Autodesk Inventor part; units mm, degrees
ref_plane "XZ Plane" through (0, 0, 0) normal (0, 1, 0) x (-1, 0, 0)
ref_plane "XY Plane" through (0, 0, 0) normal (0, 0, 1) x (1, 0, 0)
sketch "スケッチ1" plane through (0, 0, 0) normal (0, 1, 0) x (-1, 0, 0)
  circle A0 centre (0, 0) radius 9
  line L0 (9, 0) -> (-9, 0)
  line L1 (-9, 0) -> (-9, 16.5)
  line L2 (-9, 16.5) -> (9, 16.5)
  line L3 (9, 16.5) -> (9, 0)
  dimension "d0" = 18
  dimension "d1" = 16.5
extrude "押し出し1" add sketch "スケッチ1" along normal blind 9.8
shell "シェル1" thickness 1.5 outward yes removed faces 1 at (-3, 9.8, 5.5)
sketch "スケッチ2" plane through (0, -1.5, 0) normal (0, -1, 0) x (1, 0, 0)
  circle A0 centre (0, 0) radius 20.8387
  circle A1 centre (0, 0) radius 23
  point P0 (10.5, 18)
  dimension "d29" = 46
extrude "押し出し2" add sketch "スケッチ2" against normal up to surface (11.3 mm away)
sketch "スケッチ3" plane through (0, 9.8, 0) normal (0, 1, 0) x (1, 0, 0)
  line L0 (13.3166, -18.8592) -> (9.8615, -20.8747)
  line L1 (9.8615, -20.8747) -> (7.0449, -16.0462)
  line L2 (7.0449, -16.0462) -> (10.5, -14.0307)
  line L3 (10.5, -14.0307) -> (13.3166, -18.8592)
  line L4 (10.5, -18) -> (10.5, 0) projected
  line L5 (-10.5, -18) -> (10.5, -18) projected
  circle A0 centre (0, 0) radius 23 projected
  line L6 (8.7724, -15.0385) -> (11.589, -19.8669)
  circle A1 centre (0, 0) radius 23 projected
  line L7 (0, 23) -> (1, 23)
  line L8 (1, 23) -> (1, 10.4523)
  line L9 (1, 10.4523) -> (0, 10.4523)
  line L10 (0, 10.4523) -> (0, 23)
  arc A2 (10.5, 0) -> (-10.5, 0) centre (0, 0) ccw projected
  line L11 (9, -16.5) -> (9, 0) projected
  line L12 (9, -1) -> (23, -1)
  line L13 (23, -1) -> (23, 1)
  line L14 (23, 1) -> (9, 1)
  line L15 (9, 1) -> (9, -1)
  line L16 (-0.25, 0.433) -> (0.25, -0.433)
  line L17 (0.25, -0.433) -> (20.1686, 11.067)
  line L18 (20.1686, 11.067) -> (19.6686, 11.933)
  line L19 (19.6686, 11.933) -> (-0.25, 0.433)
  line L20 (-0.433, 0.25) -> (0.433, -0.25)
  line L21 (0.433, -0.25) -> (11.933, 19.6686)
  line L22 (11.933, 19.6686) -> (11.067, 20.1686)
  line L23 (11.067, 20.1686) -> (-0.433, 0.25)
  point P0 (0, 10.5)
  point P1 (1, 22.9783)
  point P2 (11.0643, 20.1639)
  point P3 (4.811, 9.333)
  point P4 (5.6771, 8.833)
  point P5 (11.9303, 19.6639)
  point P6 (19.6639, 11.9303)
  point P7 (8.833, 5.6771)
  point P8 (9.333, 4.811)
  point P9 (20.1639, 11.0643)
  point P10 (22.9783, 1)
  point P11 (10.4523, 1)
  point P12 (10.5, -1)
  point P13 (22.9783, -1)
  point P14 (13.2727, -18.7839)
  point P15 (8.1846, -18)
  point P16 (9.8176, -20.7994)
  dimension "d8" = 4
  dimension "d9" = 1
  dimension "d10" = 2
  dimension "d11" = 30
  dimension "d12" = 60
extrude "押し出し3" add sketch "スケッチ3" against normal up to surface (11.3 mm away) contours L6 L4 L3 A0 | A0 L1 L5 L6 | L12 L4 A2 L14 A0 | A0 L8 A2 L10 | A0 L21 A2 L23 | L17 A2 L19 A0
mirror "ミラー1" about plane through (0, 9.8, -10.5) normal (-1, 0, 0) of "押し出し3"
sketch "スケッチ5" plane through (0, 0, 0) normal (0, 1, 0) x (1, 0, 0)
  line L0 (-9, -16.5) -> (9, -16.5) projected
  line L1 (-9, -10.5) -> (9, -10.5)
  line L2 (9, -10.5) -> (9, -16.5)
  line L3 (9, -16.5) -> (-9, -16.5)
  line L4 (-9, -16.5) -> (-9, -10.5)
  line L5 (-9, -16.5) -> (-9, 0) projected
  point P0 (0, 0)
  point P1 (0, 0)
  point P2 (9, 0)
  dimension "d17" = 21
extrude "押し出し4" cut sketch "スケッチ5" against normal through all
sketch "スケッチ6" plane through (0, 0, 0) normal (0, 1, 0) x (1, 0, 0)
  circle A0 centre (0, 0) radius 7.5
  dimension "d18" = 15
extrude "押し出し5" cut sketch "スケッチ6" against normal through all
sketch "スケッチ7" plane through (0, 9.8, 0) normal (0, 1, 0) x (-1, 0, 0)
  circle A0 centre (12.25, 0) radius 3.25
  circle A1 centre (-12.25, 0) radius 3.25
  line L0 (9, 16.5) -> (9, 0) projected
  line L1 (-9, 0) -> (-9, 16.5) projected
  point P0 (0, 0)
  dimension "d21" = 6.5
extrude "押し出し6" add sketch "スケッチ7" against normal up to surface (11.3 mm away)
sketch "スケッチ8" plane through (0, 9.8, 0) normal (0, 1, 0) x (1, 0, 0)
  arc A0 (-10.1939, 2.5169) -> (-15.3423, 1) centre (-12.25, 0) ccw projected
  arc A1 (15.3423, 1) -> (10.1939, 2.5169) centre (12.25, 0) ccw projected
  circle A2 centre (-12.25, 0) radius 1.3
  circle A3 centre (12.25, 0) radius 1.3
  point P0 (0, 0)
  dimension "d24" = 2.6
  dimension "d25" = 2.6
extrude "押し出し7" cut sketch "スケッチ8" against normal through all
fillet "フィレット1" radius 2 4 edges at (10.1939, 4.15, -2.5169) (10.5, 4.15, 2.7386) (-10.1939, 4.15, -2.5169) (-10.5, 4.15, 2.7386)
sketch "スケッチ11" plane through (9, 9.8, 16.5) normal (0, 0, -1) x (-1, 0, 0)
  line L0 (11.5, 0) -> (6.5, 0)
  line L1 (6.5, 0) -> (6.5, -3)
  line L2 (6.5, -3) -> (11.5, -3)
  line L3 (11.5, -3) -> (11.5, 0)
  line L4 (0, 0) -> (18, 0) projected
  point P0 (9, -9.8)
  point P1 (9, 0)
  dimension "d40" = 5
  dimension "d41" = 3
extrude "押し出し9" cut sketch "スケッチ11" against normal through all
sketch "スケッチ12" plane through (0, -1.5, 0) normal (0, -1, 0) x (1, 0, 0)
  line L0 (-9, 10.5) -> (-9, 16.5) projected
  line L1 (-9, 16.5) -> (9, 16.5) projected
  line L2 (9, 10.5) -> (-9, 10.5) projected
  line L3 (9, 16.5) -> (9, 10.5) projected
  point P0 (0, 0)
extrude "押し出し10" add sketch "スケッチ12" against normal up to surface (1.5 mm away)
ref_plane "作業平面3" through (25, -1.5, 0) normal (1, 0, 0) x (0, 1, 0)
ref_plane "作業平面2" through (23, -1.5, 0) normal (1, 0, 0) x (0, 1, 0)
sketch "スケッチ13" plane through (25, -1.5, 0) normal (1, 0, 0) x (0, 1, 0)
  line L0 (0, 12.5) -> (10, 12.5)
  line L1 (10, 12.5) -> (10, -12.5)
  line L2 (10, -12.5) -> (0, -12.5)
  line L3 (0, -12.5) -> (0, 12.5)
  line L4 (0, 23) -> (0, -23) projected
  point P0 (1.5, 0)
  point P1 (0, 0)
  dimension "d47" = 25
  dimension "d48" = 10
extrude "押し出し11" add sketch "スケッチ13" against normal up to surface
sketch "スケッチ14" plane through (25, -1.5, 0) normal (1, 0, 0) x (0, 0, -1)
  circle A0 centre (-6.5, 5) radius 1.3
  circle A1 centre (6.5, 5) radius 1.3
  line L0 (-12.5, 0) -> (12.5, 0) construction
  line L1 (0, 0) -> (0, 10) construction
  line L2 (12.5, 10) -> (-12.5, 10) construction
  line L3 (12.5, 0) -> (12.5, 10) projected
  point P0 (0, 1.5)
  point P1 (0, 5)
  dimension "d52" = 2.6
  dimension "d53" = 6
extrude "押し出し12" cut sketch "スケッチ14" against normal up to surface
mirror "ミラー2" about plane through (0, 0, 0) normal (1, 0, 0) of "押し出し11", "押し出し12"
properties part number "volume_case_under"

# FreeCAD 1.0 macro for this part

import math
import FreeCAD as App
import Part
import Sketcher
from FreeCAD import Vector
Q = App.Units.Quantity


def edges_at(feature, points):
    """Names of the edges that pass closest to the given points."""
    edges = feature.Shape.Edges
    near = lambda p: min(range(len(edges)), key=lambda i: edges[i].distToShape(Part.Vertex(*p))[0])
    return sorted({f"Edge{near(p) + 1}" for p in points})


def faces_at(feature, points):
    """Names of the faces that lie closest to the given points."""
    faces = feature.Shape.Faces
    near = lambda p: min(range(len(faces)), key=lambda i: faces[i].distToShape(Part.Vertex(*p))[0])
    return sorted({f"Face{near(p) + 1}" for p in points})

doc = App.newDocument("Part")
body = doc.addObject("PartDesign::Body", "Body")
body.AllowCompound = True

sketch1 = doc.addObject("Sketcher::SketchObject", "Sketch")
body.addObject(sketch1)
sketch1.AttachmentSupport = (doc.XZ_Plane, [""])
sketch1.MapMode = "FlatFace"
sketch1.addGeometry([
    Part.ArcOfCircle(Part.Circle(Vector(0, 0, 0), Vector(0, 0, 1), 9), math.radians(180), math.radians(360)),
    Part.LineSegment(Vector(-9, 0, 0), Vector(-9, 16, 0)),
    Part.LineSegment(Vector(-9, 16, 0), Vector(9, 16, 0)),
    Part.LineSegment(Vector(9, 16, 0), Vector(9, 0, 0)),
], False)
sketch1.addConstraint([
    Sketcher.Constraint("Tangent", 0, 1, 1, 1),
    Sketcher.Constraint("Coincident", 1, 2, 2, 1),
    Sketcher.Constraint("Coincident", 2, 2, 3, 1),
    Sketcher.Constraint("Tangent", 3, 2, 0, 2),
    Sketcher.Constraint("Vertical", 1),
    Sketcher.Constraint("Horizontal", 2),
    Sketcher.Constraint("Vertical", 3),
    Sketcher.Constraint("Coincident", 0, 3, -1, 1),
    Sketcher.Constraint("Radius", 0, Q("9 mm")),
    Sketcher.Constraint("DistanceY", 1, 1, 1, 2, Q("16.5 mm")),
])
pad1 = doc.addObject("PartDesign::Pad", "Pad")
body.addObject(pad1)
pad1.Profile = sketch1
pad1.Length = 9.8
pad1.Reversed = True
doc.recompute()

thickness = doc.addObject("PartDesign::Thickness", "Thickness")
body.addObject(thickness)
thickness.Base = (pad1, faces_at(pad1, [(-3, 9.8, 5.5)]))
thickness.Value = 1.5
thickness.Reversed = False
thickness.Join = "Intersection"

sketch2 = doc.addObject("Sketcher::SketchObject", "Sketch001")
body.addObject(sketch2)
sketch2.AttachmentSupport = (doc.XZ_Plane, [""])
sketch2.MapMode = "FlatFace"
sketch2.AttachmentOffset = App.Placement(Vector(0, 0, 1.5), App.Rotation())
sketch2.addGeometry([
    Part.Circle(Vector(0, 0, 0), Vector(0, 0, 1), 23),
    Part.Circle(Vector(0, 0, 0), Vector(0, 0, 1), 21),
], False)
sketch2.addConstraint([
    Sketcher.Constraint("Coincident", 0, 3, -1, 1),
    Sketcher.Constraint("Coincident", 1, 3, -1, 1),
    Sketcher.Constraint("Diameter", 0, Q("46 mm")),
    Sketcher.Constraint("Diameter", 1, Q("41.6774 mm")),
])
pad2 = doc.addObject("PartDesign::Pad", "Pad001")
body.addObject(pad2)
pad2.Profile = sketch2
pad2.Length = 11.3
pad2.Reversed = True

sketch3 = doc.addObject("Sketcher::SketchObject", "Sketch002")
body.addObject(sketch3)
sketch3.AttachmentSupport = (doc.XZ_Plane, [""])
sketch3.MapMode = "FlatFace"
sketch3.AttachmentOffset = App.Placement(Vector(0, 0, -9.8), App.Rotation())
sketch3.addGeometry([
    Part.LineSegment(Vector(10.5, 14, 0), Vector(10.5, 18, 0)),
    Part.LineSegment(Vector(10.5, 18, 0), Vector(8.2, 18, 0)),
    Part.LineSegment(Vector(8.2, 18, 0), Vector(9.8, 20.8, 0)),
    Part.ArcOfCircle(Part.Circle(Vector(0, 0, 0), Vector(0, 0, 1), 23), math.radians(54.76), math.radians(64.73)),
    Part.LineSegment(Vector(13.3, 18.8, 0), Vector(10.5, 14, 0)),
    Part.LineSegment(Vector(10.5, 1, 0), Vector(23, 1, 0)),
    Part.ArcOfCircle(Part.Circle(Vector(0, 0, 0), Vector(0, 0, 1), 23), math.radians(-2.49), math.radians(2.49)),
    Part.LineSegment(Vector(23, -1, 0), Vector(10.5, -1, 0)),
    Part.ArcOfCircle(Part.Circle(Vector(0, 0, 0), Vector(0, 0, 1), 10.5), math.radians(-5.47), math.radians(0)),
    Part.LineSegment(Vector(10.5, 0, 0), Vector(10.5, 1, 0)),
    Part.ArcOfCircle(Part.Circle(Vector(0, 0, 0), Vector(0, 0, 1), 23), math.radians(-90), math.radians(-87.51)),
    Part.LineSegment(Vector(0, -23, 0), Vector(0, -10.5, 0)),
    Part.ArcOfCircle(Part.Circle(Vector(0, 0, 0), Vector(0, 0, 1), 10.5), math.radians(-90), math.radians(-84.53)),
    Part.LineSegment(Vector(1, -10.5, 0), Vector(1, -23, 0)),
    Part.ArcOfCircle(Part.Circle(Vector(0, 0, 0), Vector(0, 0, 1), 23), math.radians(-61.25), math.radians(-58.75)),
    Part.LineSegment(Vector(11.1, -20.2, 0), Vector(4.8, -9.3, 0)),
    Part.ArcOfCircle(Part.Circle(Vector(0, 0, 0), Vector(0, 0, 1), 10.5), math.radians(-62.73), math.radians(-57.27)),
    Part.LineSegment(Vector(5.7, -8.8, 0), Vector(11.9, -19.7, 0)),
    Part.LineSegment(Vector(9.3, -4.8, 0), Vector(20.2, -11.1, 0)),
    Part.ArcOfCircle(Part.Circle(Vector(0, 0, 0), Vector(0, 0, 1), 23), math.radians(-31.25), math.radians(-28.75)),
    Part.LineSegment(Vector(19.7, -11.9, 0), Vector(8.8, -5.7, 0)),
    Part.ArcOfCircle(Part.Circle(Vector(0, 0, 0), Vector(0, 0, 1), 10.5), math.radians(-32.73), math.radians(-27.27)),
], False)
sketch3.addConstraint([
    Sketcher.Constraint("Coincident", 0, 2, 1, 1),
    Sketcher.Constraint("Coincident", 1, 2, 2, 1),
    Sketcher.Constraint("Coincident", 2, 2, 3, 2),
    Sketcher.Constraint("Coincident", 3, 1, 4, 1),
    Sketcher.Constraint("Coincident", 4, 2, 0, 1),
    Sketcher.Constraint("Coincident", 5, 2, 6, 2),
    Sketcher.Constraint("Coincident", 6, 1, 7, 1),
    Sketcher.Constraint("Coincident", 7, 2, 8, 1),
    Sketcher.Constraint("Tangent", 8, 2, 9, 1),
    Sketcher.Constraint("Coincident", 9, 2, 5, 1),
    Sketcher.Constraint("Coincident", 10, 1, 11, 1),
    Sketcher.Constraint("Coincident", 11, 2, 12, 1),
    Sketcher.Constraint("Coincident", 12, 2, 13, 1),
    Sketcher.Constraint("Coincident", 13, 2, 10, 2),
    Sketcher.Constraint("Coincident", 14, 1, 15, 1),
    Sketcher.Constraint("Coincident", 15, 2, 16, 1),
    Sketcher.Constraint("Coincident", 16, 2, 17, 1),
    Sketcher.Constraint("Coincident", 17, 2, 14, 2),
    Sketcher.Constraint("Coincident", 18, 2, 19, 2),
    Sketcher.Constraint("Coincident", 19, 1, 20, 1),
    Sketcher.Constraint("Coincident", 20, 2, 21, 1),
    Sketcher.Constraint("Coincident", 21, 2, 18, 1),
    Sketcher.Constraint("Vertical", 0),
    Sketcher.Constraint("Horizontal", 1),
    Sketcher.Constraint("Horizontal", 5),
    Sketcher.Constraint("Horizontal", 7),
    Sketcher.Constraint("Vertical", 9),
    Sketcher.Constraint("Vertical", 11),
    Sketcher.Constraint("Vertical", 13),
    Sketcher.Constraint("Coincident", 3, 3, -1, 1),
    Sketcher.Constraint("Coincident", 6, 3, -1, 1),
    Sketcher.Constraint("Coincident", 8, 3, -1, 1),
    Sketcher.Constraint("Coincident", 10, 3, -1, 1),
    Sketcher.Constraint("Coincident", 12, 3, -1, 1),
    Sketcher.Constraint("Coincident", 14, 3, -1, 1),
    Sketcher.Constraint("Coincident", 16, 3, -1, 1),
    Sketcher.Constraint("Coincident", 19, 3, -1, 1),
    Sketcher.Constraint("Coincident", 21, 3, -1, 1),
    Sketcher.Constraint("Equal", 3, 6),
    Sketcher.Constraint("Equal", 6, 10),
    Sketcher.Constraint("Equal", 8, 12),
    Sketcher.Constraint("Equal", 10, 14),
    Sketcher.Constraint("Equal", 12, 16),
    Sketcher.Constraint("Equal", 14, 19),
    Sketcher.Constraint("Equal", 16, 21),
    Sketcher.Constraint("PointOnObject", 10, 1, -2),
    Sketcher.Constraint("Parallel", 2, 4),
    Sketcher.Constraint("Parallel", 15, 17),
    Sketcher.Constraint("Parallel", 18, 20),
    Sketcher.Constraint("Vertical", 5, 2, 6, 1),
    Sketcher.Constraint("Vertical", 4, 2, 8, 2),
    Sketcher.Constraint("Equal", 7, 13),
    Sketcher.Constraint("Equal", 15, 17),
    Sketcher.Constraint("Equal", 17, 18),
    Sketcher.Constraint("Equal", 18, 20),
    Sketcher.Constraint("DistanceY", 9, 1, 9, 2, Q("1 mm")),
    Sketcher.Constraint("Angle", 17, Q("-60 deg")),
    Sketcher.Constraint("Angle", 18, Q("-30 deg")),
    Sketcher.Constraint("Radius", 3, Q("23 mm")),
    Sketcher.Constraint("Radius", 8, Q("10.5 mm")),
    Sketcher.Constraint("DistanceY", -1, 1, 0, 2, Q("18 mm")),
    Sketcher.Constraint("DistanceY", 15, 2, 16, 2, Q("0.5 mm")),
    Sketcher.Constraint("DistanceX", 1, 2, 1, 1, Q("2.3154 mm")),
    Sketcher.Constraint("DistanceY", 0, 1, 0, 2, Q("3.9693 mm")),
    Sketcher.Constraint("DistanceY", -1, 1, 3, 1, Q("18.784 mm")),
])
pad3 = doc.addObject("PartDesign::Pad", "Pad002")
body.addObject(pad3)
pad3.Profile = sketch3
pad3.Length = 11.3
doc.recompute()

mirrored = doc.addObject("PartDesign::Mirrored", "Mirrored")
body.addObject(mirrored)
mirrored.Originals = [pad3]
mirrored.MirrorPlane = (doc.YZ_Plane, [""])
body.Tip = mirrored

sketch4 = doc.addObject("Sketcher::SketchObject", "Sketch003")
body.addObject(sketch4)
sketch4.AttachmentSupport = (doc.XZ_Plane, [""])
sketch4.MapMode = "FlatFace"
sketch4.addGeometry([
    Part.LineSegment(Vector(-9, 10, 0), Vector(-9, 16, 0)),
    Part.LineSegment(Vector(-9, 16, 0), Vector(9, 16, 0)),
    Part.LineSegment(Vector(9, 16, 0), Vector(9, 10, 0)),
    Part.LineSegment(Vector(9, 10, 0), Vector(-9, 10, 0)),
], False)
sketch4.addConstraint([
    Sketcher.Constraint("Coincident", 0, 2, 1, 1),
    Sketcher.Constraint("Coincident", 1, 2, 2, 1),
    Sketcher.Constraint("Coincident", 2, 2, 3, 1),
    Sketcher.Constraint("Coincident", 3, 2, 0, 1),
    Sketcher.Constraint("Vertical", 0),
    Sketcher.Constraint("Horizontal", 1),
    Sketcher.Constraint("Vertical", 2),
    Sketcher.Constraint("Horizontal", 3),
    Sketcher.Constraint("DistanceX", 1, 1, 1, 2, Q("18 mm")),
    Sketcher.Constraint("DistanceY", 0, 1, 0, 2, Q("6 mm")),
    Sketcher.Constraint("DistanceX", 0, 2, -1, 1, Q("9 mm")),
    Sketcher.Constraint("DistanceY", -1, 1, 0, 2, Q("16.5 mm")),
])
pocket1 = doc.addObject("PartDesign::Pocket", "Pocket")
body.addObject(pocket1)
pocket1.Profile = sketch4
pocket1.Type = "ThroughAll"
pocket1.Reversed = True

sketch5 = doc.addObject("Sketcher::SketchObject", "Sketch004")
body.addObject(sketch5)
sketch5.AttachmentSupport = (doc.XZ_Plane, [""])
sketch5.MapMode = "FlatFace"
sketch5.addGeometry(Part.Circle(Vector(0, 0, 0), Vector(0, 0, 1), 8), False)
sketch5.addConstraint([
    Sketcher.Constraint("Coincident", 0, 3, -1, 1),
    Sketcher.Constraint("Diameter", 0, Q("15 mm")),
])
pocket2 = doc.addObject("PartDesign::Pocket", "Pocket001")
body.addObject(pocket2)
pocket2.Profile = sketch5
pocket2.Type = "ThroughAll"
pocket2.Reversed = True

sketch6 = doc.addObject("Sketcher::SketchObject", "Sketch005")
body.addObject(sketch6)
sketch6.AttachmentSupport = (doc.XZ_Plane, [""])
sketch6.MapMode = "FlatFace"
sketch6.AttachmentOffset = App.Placement(Vector(0, 0, -9.8), App.Rotation())
sketch6.addGeometry([
    Part.Circle(Vector(-12.2, 0, 0), Vector(0, 0, 1), 3.2),
    Part.Circle(Vector(12.2, 0, 0), Vector(0, 0, 1), 3.2),
], False)
sketch6.addConstraint([
    Sketcher.Constraint("Equal", 0, 1),
    Sketcher.Constraint("Symmetric", 0, 3, 1, 3, -1, 1),
    Sketcher.Constraint("PointOnObject", 0, 3, -1),
    Sketcher.Constraint("Diameter", 0, Q("6.5 mm")),
    Sketcher.Constraint("DistanceX", 0, 3, 1, 3, Q("24.5 mm")),
])
pad4 = doc.addObject("PartDesign::Pad", "Pad003")
body.addObject(pad4)
pad4.Profile = sketch6
pad4.Length = 11.3

sketch7 = doc.addObject("Sketcher::SketchObject", "Sketch006")
body.addObject(sketch7)
sketch7.AttachmentSupport = (doc.XZ_Plane, [""])
sketch7.MapMode = "FlatFace"
sketch7.AttachmentOffset = App.Placement(Vector(0, 0, -9.8), App.Rotation())
sketch7.addGeometry([
    Part.Circle(Vector(-12.2, 0, 0), Vector(0, 0, 1), 1.3),
    Part.Circle(Vector(12.2, 0, 0), Vector(0, 0, 1), 1.3),
], False)
sketch7.addConstraint([
    Sketcher.Constraint("Equal", 0, 1),
    Sketcher.Constraint("Symmetric", 0, 3, 1, 3, -1, 1),
    Sketcher.Constraint("PointOnObject", 0, 3, -1),
    Sketcher.Constraint("Diameter", 0, Q("2.6 mm")),
    Sketcher.Constraint("DistanceX", 0, 3, 1, 3, Q("24.5 mm")),
])
pocket3 = doc.addObject("PartDesign::Pocket", "Pocket002")
body.addObject(pocket3)
pocket3.Profile = sketch7
pocket3.Type = "ThroughAll"
pocket3.Reversed = True
doc.recompute()

fillet = doc.addObject("PartDesign::Fillet", "Fillet")
body.addObject(fillet)
fillet.Base = (pocket3, edges_at(pocket3, [
    (10.194, 4.15, -2.517),
    (10.5, 4.15, 2.739),
    (-10.194, 4.15, -2.517),
    (-10.5, 4.15, 2.739),
]))
fillet.Radius = 2

sketch8 = doc.addObject("Sketcher::SketchObject", "Sketch007")
body.addObject(sketch8)
sketch8.AttachmentSupport = (doc.XY_Plane, [""])
sketch8.MapMode = "FlatFace"
sketch8.AttachmentOffset = App.Placement(Vector(0, 0, 16.5), App.Rotation())
sketch8.addGeometry([
    Part.LineSegment(Vector(-2.5, 6.8, 0), Vector(-2.5, 9.8, 0)),
    Part.LineSegment(Vector(-2.5, 9.8, 0), Vector(2.5, 9.8, 0)),
    Part.LineSegment(Vector(2.5, 9.8, 0), Vector(2.5, 6.8, 0)),
    Part.LineSegment(Vector(2.5, 6.8, 0), Vector(-2.5, 6.8, 0)),
], False)
sketch8.addConstraint([
    Sketcher.Constraint("Coincident", 0, 2, 1, 1),
    Sketcher.Constraint("Coincident", 1, 2, 2, 1),
    Sketcher.Constraint("Coincident", 2, 2, 3, 1),
    Sketcher.Constraint("Coincident", 3, 2, 0, 1),
    Sketcher.Constraint("Vertical", 0),
    Sketcher.Constraint("Horizontal", 1),
    Sketcher.Constraint("Vertical", 2),
    Sketcher.Constraint("Horizontal", 3),
    Sketcher.Constraint("DistanceX", 1, 1, 1, 2, Q("5 mm")),
    Sketcher.Constraint("DistanceY", 0, 1, 0, 2, Q("3 mm")),
    Sketcher.Constraint("DistanceX", 0, 2, -1, 1, Q("2.5 mm")),
    Sketcher.Constraint("DistanceY", -1, 1, 0, 2, Q("9.8 mm")),
])
pocket4 = doc.addObject("PartDesign::Pocket", "Pocket003")
body.addObject(pocket4)
pocket4.Profile = sketch8
pocket4.Type = "ThroughAll"
pocket4.Reversed = True

sketch9 = doc.addObject("Sketcher::SketchObject", "Sketch008")
body.addObject(sketch9)
sketch9.AttachmentSupport = (doc.XZ_Plane, [""])
sketch9.MapMode = "FlatFace"
sketch9.AttachmentOffset = App.Placement(Vector(0, 0, 1.5), App.Rotation())
sketch9.addGeometry([
    Part.LineSegment(Vector(-9, 16, 0), Vector(-9, 10, 0)),
    Part.LineSegment(Vector(-9, 10, 0), Vector(9, 10, 0)),
    Part.LineSegment(Vector(9, 10, 0), Vector(9, 16, 0)),
    Part.LineSegment(Vector(9, 16, 0), Vector(-9, 16, 0)),
], False)
sketch9.addConstraint([
    Sketcher.Constraint("Coincident", 0, 2, 1, 1),
    Sketcher.Constraint("Coincident", 1, 2, 2, 1),
    Sketcher.Constraint("Coincident", 2, 2, 3, 1),
    Sketcher.Constraint("Coincident", 3, 2, 0, 1),
    Sketcher.Constraint("Vertical", 0),
    Sketcher.Constraint("Horizontal", 1),
    Sketcher.Constraint("Vertical", 2),
    Sketcher.Constraint("Horizontal", 3),
    Sketcher.Constraint("DistanceX", 1, 1, 1, 2, Q("18 mm")),
    Sketcher.Constraint("DistanceY", 0, 2, 0, 1, Q("6 mm")),
    Sketcher.Constraint("DistanceX", 0, 2, -1, 1, Q("9 mm")),
    Sketcher.Constraint("DistanceY", -1, 1, 0, 2, Q("10.5 mm")),
])
pad5 = doc.addObject("PartDesign::Pad", "Pad004")
body.addObject(pad5)
pad5.Profile = sketch9
pad5.Length = 1.5
pad5.Reversed = True

sketch10 = doc.addObject("Sketcher::SketchObject", "Sketch009")
body.addObject(sketch10)
sketch10.AttachmentSupport = (doc.YZ_Plane, [""])
sketch10.MapMode = "FlatFace"
sketch10.AttachmentOffset = App.Placement(Vector(0, 0, 25), App.Rotation())
sketch10.addGeometry([
    Part.LineSegment(Vector(8, 12, 0), Vector(-2, 12, 0)),
    Part.LineSegment(Vector(-2, 12, 0), Vector(-2, -12, 0)),
    Part.LineSegment(Vector(-2, -12, 0), Vector(8, -12, 0)),
    Part.LineSegment(Vector(8, -12, 0), Vector(8, 12, 0)),
], False)
sketch10.addConstraint([
    Sketcher.Constraint("Coincident", 0, 2, 1, 1),
    Sketcher.Constraint("Coincident", 1, 2, 2, 1),
    Sketcher.Constraint("Coincident", 2, 2, 3, 1),
    Sketcher.Constraint("Coincident", 3, 2, 0, 1),
    Sketcher.Constraint("Horizontal", 0),
    Sketcher.Constraint("Vertical", 1),
    Sketcher.Constraint("Horizontal", 2),
    Sketcher.Constraint("Vertical", 3),
    Sketcher.Constraint("DistanceX", 0, 2, 0, 1, Q("10 mm")),
    Sketcher.Constraint("DistanceY", 1, 2, 1, 1, Q("25 mm")),
    Sketcher.Constraint("DistanceX", 0, 2, -1, 1, Q("1.5 mm")),
    Sketcher.Constraint("DistanceY", -1, 1, 0, 2, Q("12.5 mm")),
])
pad6 = doc.addObject("PartDesign::Pad", "Pad005")
body.addObject(pad6)
pad6.Profile = sketch10
pad6.Type = "UpToFirst"
pad6.Reversed = True

sketch11 = doc.addObject("Sketcher::SketchObject", "Sketch010")
body.addObject(sketch11)
sketch11.AttachmentSupport = (doc.YZ_Plane, [""])
sketch11.MapMode = "FlatFace"
sketch11.AttachmentOffset = App.Placement(Vector(0, 0, 25), App.Rotation())
sketch11.addGeometry([
    Part.Circle(Vector(3.5, 6.5, 0), Vector(0, 0, 1), 1.3),
    Part.Circle(Vector(3.5, -6.5, 0), Vector(0, 0, 1), 1.3),
], False)
sketch11.addConstraint([
    Sketcher.Constraint("Equal", 0, 1),
    Sketcher.Constraint("Symmetric", 0, 3, 1, 3, -1),
    Sketcher.Constraint("Diameter", 0, Q("2.6 mm")),
    Sketcher.Constraint("DistanceY", 1, 3, 0, 3, Q("13 mm")),
    Sketcher.Constraint("DistanceX", -1, 1, 0, 3, Q("3.5 mm")),
])
pocket5 = doc.addObject("PartDesign::Pocket", "Pocket004")
body.addObject(pocket5)
pocket5.Profile = sketch11
pocket5.Length = 5.6761
doc.recompute()

mirrored2 = doc.addObject("PartDesign::Mirrored", "Mirrored001")
body.addObject(mirrored2)
mirrored2.Originals = [pad6, pocket5]
mirrored2.MirrorPlane = (doc.YZ_Plane, [""])
body.Tip = mirrored2

doc.recompute()
